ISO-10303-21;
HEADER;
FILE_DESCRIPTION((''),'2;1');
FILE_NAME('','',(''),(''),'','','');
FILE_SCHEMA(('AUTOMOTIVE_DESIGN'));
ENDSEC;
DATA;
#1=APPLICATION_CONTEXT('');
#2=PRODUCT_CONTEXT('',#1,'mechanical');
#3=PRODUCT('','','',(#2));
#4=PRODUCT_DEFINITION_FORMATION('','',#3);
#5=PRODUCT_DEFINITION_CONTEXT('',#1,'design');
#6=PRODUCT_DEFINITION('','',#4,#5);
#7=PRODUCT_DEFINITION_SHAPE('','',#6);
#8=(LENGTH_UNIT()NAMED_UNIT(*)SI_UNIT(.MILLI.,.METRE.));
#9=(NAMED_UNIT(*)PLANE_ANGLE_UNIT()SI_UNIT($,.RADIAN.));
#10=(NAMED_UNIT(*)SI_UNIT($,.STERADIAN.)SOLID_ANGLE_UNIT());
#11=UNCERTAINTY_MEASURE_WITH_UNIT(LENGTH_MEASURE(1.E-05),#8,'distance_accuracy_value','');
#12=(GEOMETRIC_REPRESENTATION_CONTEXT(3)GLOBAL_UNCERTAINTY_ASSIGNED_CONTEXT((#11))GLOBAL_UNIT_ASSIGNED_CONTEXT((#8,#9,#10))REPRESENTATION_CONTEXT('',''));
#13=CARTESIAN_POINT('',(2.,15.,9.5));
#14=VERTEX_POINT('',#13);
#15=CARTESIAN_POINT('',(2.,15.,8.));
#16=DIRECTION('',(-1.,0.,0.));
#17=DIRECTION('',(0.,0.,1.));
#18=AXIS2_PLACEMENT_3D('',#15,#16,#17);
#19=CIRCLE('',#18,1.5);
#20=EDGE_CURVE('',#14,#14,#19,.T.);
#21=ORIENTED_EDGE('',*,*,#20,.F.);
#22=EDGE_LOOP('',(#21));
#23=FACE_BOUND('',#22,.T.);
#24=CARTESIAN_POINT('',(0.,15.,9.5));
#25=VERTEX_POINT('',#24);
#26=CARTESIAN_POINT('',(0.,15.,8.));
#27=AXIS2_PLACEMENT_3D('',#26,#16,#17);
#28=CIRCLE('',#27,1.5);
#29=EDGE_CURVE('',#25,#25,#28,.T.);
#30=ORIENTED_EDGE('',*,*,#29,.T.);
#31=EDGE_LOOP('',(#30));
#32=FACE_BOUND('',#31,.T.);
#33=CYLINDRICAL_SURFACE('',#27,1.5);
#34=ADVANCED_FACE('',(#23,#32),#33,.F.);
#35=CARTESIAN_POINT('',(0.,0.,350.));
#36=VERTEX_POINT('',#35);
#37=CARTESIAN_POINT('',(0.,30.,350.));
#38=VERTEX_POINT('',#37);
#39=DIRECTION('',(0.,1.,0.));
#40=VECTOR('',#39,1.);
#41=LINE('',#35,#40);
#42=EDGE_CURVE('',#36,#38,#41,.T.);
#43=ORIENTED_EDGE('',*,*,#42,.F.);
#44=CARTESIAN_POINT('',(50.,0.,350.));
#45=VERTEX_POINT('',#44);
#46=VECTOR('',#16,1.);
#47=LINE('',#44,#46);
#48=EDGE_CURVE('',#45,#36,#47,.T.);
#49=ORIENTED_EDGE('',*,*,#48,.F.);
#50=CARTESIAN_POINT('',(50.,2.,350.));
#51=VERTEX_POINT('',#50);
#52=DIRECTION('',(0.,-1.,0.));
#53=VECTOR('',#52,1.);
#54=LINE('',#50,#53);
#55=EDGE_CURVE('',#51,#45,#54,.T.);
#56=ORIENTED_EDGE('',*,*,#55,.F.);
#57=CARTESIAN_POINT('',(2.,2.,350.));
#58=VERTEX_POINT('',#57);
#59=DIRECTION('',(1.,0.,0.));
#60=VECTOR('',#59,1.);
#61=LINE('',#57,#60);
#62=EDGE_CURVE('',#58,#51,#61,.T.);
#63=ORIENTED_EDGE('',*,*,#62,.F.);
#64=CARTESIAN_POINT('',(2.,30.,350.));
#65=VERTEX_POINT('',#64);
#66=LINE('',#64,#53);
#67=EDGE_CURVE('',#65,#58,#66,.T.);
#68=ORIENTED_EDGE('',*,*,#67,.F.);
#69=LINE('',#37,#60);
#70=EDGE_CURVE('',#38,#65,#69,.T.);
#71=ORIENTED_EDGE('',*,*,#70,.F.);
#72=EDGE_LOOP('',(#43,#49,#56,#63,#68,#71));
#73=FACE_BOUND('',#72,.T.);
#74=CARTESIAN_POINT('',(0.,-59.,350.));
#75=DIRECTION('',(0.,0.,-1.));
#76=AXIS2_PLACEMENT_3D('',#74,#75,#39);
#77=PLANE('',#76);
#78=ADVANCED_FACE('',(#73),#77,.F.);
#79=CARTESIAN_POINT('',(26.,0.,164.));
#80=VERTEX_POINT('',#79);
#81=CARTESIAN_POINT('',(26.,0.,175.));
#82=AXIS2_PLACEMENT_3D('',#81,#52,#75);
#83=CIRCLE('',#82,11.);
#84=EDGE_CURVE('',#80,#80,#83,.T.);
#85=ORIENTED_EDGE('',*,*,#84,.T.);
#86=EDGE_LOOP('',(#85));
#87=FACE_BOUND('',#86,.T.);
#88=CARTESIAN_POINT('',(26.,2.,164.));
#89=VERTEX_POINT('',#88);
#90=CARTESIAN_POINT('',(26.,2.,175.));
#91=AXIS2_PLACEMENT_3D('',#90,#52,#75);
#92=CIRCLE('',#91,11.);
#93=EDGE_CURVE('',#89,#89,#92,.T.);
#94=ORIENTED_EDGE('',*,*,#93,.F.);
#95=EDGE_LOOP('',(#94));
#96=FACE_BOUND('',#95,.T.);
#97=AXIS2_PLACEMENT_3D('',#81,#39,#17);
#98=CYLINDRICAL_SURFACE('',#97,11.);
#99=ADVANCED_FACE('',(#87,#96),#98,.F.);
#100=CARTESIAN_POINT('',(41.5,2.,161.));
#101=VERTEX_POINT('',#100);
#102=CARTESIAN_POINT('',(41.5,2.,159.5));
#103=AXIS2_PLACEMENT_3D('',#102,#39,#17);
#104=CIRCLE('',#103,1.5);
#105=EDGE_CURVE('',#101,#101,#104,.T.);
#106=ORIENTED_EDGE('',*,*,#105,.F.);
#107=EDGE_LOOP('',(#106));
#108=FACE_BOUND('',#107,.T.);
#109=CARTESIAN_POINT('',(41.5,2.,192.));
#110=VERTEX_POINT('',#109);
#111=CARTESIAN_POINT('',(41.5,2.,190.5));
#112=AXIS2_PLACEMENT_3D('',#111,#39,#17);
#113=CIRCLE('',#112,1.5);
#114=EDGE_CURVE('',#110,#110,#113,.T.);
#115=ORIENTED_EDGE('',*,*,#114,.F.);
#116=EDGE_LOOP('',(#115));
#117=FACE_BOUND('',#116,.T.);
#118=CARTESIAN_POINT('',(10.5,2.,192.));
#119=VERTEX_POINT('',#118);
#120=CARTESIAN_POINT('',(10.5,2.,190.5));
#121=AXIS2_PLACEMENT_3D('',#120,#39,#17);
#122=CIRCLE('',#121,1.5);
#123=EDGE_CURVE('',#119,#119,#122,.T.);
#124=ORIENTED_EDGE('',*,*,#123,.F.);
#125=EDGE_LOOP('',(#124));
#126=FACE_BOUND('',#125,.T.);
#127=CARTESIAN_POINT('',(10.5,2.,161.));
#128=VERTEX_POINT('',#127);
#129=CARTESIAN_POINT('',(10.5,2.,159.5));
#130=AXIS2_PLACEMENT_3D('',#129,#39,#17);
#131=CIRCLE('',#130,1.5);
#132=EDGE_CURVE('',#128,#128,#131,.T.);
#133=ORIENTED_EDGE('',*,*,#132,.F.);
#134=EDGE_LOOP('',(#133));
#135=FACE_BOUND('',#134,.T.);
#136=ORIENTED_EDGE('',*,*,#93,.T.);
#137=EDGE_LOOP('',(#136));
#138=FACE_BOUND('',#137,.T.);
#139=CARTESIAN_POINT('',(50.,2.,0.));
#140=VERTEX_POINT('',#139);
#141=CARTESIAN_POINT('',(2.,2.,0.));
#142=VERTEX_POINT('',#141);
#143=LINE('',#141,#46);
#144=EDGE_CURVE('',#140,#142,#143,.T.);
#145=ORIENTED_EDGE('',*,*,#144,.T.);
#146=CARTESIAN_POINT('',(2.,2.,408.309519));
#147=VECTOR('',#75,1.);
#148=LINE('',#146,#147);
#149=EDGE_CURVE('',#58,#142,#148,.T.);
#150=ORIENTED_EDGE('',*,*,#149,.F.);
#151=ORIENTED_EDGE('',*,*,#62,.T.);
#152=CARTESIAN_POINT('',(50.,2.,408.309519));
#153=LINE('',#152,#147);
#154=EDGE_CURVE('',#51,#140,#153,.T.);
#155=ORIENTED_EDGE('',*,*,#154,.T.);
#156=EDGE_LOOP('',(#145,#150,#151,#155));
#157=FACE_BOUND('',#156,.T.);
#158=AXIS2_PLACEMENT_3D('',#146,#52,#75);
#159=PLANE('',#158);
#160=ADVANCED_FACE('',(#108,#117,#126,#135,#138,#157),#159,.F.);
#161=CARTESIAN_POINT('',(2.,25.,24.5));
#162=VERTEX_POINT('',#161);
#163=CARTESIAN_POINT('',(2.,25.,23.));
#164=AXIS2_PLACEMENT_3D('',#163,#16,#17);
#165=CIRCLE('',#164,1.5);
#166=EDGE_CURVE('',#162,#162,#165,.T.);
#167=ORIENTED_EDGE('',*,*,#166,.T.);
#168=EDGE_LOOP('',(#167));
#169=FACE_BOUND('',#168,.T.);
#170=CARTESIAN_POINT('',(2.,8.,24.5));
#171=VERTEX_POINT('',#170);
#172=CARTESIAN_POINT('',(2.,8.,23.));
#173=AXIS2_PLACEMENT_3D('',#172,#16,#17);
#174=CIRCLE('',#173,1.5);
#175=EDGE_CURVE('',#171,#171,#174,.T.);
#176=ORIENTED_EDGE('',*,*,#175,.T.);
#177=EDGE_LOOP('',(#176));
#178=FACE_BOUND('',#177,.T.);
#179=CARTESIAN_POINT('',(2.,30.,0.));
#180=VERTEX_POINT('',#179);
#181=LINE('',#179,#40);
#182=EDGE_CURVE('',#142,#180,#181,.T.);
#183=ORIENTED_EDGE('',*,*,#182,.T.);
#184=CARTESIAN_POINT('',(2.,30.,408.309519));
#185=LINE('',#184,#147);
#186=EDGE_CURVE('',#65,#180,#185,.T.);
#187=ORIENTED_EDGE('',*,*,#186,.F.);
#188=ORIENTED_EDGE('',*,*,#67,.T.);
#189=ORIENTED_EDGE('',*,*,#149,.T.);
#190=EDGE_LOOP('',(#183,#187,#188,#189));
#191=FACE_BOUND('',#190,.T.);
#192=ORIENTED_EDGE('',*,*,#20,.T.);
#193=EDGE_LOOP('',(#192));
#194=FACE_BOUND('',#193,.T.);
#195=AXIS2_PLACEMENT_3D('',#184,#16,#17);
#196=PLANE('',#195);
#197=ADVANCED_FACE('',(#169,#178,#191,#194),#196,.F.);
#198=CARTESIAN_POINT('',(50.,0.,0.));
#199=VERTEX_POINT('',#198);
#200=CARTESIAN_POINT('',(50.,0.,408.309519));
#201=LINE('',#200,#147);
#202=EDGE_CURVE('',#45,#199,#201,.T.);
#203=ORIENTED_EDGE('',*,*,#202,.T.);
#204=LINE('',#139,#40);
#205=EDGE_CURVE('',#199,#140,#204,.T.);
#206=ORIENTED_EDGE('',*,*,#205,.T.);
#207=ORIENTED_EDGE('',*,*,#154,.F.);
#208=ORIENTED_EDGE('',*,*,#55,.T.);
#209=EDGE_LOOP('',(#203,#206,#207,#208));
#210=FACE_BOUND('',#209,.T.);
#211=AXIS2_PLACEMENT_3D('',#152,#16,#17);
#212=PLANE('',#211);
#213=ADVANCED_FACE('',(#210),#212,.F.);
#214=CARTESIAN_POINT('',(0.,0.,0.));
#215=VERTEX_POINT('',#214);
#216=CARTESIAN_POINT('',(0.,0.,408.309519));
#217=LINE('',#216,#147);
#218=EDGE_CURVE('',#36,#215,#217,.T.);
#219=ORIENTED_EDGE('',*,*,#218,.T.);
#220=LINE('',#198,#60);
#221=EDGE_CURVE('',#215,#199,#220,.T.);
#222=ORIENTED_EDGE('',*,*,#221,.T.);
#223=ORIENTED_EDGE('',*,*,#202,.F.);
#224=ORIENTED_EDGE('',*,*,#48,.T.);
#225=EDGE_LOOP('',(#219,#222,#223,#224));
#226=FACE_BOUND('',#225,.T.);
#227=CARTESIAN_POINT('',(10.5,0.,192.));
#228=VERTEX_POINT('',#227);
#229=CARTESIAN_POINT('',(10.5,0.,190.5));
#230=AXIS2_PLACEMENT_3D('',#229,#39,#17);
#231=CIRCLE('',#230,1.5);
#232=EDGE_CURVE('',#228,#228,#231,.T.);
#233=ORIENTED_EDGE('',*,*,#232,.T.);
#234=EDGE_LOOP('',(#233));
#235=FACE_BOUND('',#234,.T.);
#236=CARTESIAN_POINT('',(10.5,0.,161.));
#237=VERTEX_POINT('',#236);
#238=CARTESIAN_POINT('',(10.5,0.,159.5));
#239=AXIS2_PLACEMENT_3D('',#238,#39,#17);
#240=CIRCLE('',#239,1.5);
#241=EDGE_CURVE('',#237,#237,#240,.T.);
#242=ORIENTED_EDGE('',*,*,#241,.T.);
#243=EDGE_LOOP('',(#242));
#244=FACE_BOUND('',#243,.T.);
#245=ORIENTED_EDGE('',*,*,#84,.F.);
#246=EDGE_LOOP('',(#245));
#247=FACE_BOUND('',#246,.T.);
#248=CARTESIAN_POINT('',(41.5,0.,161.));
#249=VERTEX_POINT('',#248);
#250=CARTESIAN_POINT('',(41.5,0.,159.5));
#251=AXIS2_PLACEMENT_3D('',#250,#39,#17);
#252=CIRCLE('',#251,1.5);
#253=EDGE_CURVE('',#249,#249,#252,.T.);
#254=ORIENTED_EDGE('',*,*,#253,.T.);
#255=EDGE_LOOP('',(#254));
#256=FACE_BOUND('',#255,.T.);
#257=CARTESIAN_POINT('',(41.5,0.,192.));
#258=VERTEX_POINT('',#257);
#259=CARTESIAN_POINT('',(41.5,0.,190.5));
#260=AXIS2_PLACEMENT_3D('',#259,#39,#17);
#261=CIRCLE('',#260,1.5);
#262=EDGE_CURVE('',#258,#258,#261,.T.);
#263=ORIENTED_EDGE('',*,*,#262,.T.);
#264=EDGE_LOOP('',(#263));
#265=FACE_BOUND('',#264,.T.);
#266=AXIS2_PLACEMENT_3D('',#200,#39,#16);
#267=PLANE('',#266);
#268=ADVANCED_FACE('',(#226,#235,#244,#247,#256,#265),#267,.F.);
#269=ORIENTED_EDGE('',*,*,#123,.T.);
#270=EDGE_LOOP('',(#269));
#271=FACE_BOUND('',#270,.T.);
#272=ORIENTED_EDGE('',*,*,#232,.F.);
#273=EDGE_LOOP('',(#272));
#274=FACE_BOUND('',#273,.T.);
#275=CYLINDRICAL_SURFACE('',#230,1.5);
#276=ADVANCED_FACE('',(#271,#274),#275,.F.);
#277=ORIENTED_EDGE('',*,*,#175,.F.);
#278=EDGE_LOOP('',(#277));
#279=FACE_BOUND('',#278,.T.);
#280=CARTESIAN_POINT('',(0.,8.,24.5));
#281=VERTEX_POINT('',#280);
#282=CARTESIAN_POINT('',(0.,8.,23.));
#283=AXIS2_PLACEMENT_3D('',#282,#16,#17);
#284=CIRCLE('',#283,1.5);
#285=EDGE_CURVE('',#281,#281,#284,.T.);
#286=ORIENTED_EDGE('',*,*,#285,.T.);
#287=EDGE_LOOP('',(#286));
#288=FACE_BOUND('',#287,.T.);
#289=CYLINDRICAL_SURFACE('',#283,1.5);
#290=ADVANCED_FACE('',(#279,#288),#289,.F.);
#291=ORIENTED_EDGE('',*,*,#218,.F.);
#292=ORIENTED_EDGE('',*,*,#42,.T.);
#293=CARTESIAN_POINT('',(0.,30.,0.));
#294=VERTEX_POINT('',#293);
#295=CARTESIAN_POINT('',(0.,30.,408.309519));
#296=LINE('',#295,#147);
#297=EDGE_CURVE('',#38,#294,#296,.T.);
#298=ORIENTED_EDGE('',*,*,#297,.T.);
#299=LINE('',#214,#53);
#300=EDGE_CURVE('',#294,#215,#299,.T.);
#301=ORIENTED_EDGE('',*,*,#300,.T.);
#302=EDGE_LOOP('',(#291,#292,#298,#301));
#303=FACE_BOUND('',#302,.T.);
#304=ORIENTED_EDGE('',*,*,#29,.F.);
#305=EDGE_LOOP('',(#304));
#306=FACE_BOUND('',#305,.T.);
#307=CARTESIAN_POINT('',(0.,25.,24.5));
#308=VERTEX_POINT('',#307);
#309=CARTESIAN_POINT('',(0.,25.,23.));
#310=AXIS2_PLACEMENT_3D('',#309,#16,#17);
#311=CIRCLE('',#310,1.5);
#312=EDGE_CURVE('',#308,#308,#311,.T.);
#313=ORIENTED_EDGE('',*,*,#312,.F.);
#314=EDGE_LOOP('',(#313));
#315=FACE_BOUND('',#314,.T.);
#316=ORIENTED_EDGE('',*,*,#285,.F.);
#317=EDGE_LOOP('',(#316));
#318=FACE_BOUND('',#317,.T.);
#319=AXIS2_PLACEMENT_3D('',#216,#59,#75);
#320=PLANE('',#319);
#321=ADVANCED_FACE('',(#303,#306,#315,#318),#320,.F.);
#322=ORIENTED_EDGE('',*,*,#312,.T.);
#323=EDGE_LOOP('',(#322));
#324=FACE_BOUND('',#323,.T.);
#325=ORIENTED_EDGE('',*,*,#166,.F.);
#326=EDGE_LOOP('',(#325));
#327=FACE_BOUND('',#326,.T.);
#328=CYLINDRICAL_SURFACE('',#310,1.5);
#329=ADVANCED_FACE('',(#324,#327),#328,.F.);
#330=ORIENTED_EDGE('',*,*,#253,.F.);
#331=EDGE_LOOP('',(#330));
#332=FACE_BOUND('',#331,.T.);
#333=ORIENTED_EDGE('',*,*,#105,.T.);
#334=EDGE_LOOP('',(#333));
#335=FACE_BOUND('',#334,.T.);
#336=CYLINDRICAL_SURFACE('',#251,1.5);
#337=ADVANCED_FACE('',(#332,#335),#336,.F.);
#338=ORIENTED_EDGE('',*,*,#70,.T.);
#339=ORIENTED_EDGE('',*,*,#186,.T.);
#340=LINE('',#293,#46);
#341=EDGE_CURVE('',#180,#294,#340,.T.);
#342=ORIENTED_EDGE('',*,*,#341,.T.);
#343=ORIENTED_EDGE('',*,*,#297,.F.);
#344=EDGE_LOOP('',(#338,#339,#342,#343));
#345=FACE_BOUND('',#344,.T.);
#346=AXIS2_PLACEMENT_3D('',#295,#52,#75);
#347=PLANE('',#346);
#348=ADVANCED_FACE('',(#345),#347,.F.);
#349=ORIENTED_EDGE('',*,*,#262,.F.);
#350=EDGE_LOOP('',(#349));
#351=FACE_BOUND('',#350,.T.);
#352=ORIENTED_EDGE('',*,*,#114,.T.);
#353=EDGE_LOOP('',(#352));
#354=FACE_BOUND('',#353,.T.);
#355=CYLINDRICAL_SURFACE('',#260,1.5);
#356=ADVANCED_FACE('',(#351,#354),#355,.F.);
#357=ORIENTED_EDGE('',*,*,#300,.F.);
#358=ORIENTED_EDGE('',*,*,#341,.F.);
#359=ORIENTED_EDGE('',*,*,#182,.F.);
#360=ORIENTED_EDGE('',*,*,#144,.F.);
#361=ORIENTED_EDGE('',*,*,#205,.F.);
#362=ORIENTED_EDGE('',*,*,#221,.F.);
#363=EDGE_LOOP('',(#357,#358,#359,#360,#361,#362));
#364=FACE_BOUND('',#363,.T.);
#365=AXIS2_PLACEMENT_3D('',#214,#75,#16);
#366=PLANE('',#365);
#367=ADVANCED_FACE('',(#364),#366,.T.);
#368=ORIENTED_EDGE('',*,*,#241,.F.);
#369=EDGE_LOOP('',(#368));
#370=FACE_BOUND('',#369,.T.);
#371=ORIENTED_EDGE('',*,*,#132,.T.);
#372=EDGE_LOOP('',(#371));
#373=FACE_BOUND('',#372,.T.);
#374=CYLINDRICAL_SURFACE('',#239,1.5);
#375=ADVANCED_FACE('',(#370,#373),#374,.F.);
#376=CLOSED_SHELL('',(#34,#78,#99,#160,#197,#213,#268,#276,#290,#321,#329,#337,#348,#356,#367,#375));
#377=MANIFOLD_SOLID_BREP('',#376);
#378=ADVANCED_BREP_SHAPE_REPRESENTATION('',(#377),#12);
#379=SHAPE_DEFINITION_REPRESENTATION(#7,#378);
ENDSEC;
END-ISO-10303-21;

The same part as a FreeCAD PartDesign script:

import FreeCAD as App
import Part
import Sketcher
from FreeCAD import Vector


def add_polygon(sketch, points):
    """Adds a closed chain of lines whose ends are joined by coincident constraints."""
    first, n = sketch.GeometryCount, len(points)
    for a, b in zip(points, points[1:] + points[:1]):
        sketch.addGeometry(Part.LineSegment(App.Vector(*a, 0), App.Vector(*b, 0)), False)
    for i in range(n):
        sketch.addConstraint(Sketcher.Constraint("Coincident", first + i, 2, first + (i + 1) % n, 1))

doc = App.newDocument("Part")
body = doc.addObject("PartDesign::Body", "Body")

# Sketch on XY plane
sketch1 = body.newObject("Sketcher::SketchObject", "Sketch")
sketch1.AttachmentSupport = (doc.getObject("XY_Plane"), [""])
sketch1.MapMode = "FlatFace"
add_polygon(sketch1, [(0, 30), (0, 0), (50, 0), (50, 2), (2, 2), (2, 30)])  # lines 0-5
sketch1.addConstraint([
    Sketcher.Constraint("Vertical", 0),
    Sketcher.Constraint("Horizontal", 1),
    Sketcher.Constraint("Vertical", 2),
    Sketcher.Constraint("Horizontal", 3),
    Sketcher.Constraint("Vertical", 4),
    Sketcher.Constraint("Horizontal", 5),
    Sketcher.Constraint("Coincident", 0, 2, -1, 1),
    Sketcher.Constraint("Equal", 5, 2),
    Sketcher.Constraint("DistanceX", 1, 1, 1, 2, 50.0),
    Sketcher.Constraint("DistanceX", 3, 2, 3, 1, 48.0),
    Sketcher.Constraint("DistanceY", 0, 2, 0, 1, 30.0),
])
pad1 = body.newObject("PartDesign::Pad", "Pad")
pad1.Profile = sketch1
pad1.Length = 350

# Sketch on XZ plane
sketch2 = body.newObject("Sketcher::SketchObject", "Sketch001")
sketch2.AttachmentSupport = (doc.getObject("XZ_Plane"), [""])
sketch2.MapMode = "FlatFace"
sketch2.AttachmentOffset = App.Placement(Vector(0, 0, -2), App.Rotation())
sketch2.addGeometry(Part.Circle(Vector(26, 175, 0), Vector(0, 0, 1), 11), False)
sketch2.addConstraint([
    Sketcher.Constraint("Diameter", 0, 22.0),
    Sketcher.Constraint("DistanceX", -1, 1, 0, 3, 26.0),
    Sketcher.Constraint("DistanceY", -1, 1, 0, 3, 175.0),
])
pocket1 = body.newObject("PartDesign::Pocket", "Pocket")
pocket1.Profile = sketch2
pocket1.Type = "ThroughAll"
pocket1.Reversed = True

# Sketch on XZ plane
sketch3 = body.newObject("Sketcher::SketchObject", "Sketch002")
sketch3.AttachmentSupport = (doc.getObject("XZ_Plane"), [""])
sketch3.MapMode = "FlatFace"
sketch3.AttachmentOffset = App.Placement(Vector(0, 0, -2), App.Rotation())
sketch3.addGeometry([
    Part.Circle(Vector(41.5, 190.5, 0), Vector(0, 0, 1), 1.5),
    Part.Circle(Vector(41.5, 159.5, 0), Vector(0, 0, 1), 1.5),
    Part.Circle(Vector(10.5, 190.5, 0), Vector(0, 0, 1), 1.5),
    Part.Circle(Vector(10.5, 159.5, 0), Vector(0, 0, 1), 1.5),
], False)
sketch3.addConstraint([
    Sketcher.Constraint("Equal", 0, 1),
    Sketcher.Constraint("Equal", 1, 2),
    Sketcher.Constraint("Equal", 2, 3),
    Sketcher.Constraint("Horizontal", 0, 3, 2, 3),
    Sketcher.Constraint("Horizontal", 1, 3, 3, 3),
    Sketcher.Constraint("Vertical", 0, 3, 1, 3),
    Sketcher.Constraint("Vertical", 2, 3, 3, 3),
    Sketcher.Constraint("Diameter", 0, 3.0),
    Sketcher.Constraint("DistanceY", 1, 3, 0, 3, 31.0),
    Sketcher.Constraint("DistanceX", 2, 3, 0, 3, 31.0),
    Sketcher.Constraint("DistanceX", -1, 1, 0, 3, 41.5),
    Sketcher.Constraint("DistanceY", -1, 1, 0, 3, 190.5),
])
pocket2 = body.newObject("PartDesign::Pocket", "Pocket001")
pocket2.Profile = sketch3
pocket2.Type = "ThroughAll"
pocket2.Reversed = True

# Sketch on YZ plane
sketch4 = body.newObject("Sketcher::SketchObject", "Sketch003")
sketch4.AttachmentSupport = (doc.getObject("YZ_Plane"), [""])
sketch4.MapMode = "FlatFace"
sketch4.addGeometry([
    Part.Circle(Vector(8, 23, 0), Vector(0, 0, 1), 1.5),
    Part.Circle(Vector(25, 23, 0), Vector(0, 0, 1), 1.5),
    Part.Circle(Vector(15, 8, 0), Vector(0, 0, 1), 1.5),
], False)
sketch4.addConstraint([
    Sketcher.Constraint("Equal", 0, 1),
    Sketcher.Constraint("Equal", 1, 2),
    Sketcher.Constraint("Horizontal", 0, 3, 1, 3),
    Sketcher.Constraint("Diameter", 0, 3.0),
    Sketcher.Constraint("DistanceX", -1, 1, 0, 3, 8.0),
    Sketcher.Constraint("DistanceY", -1, 1, 0, 3, 23.0),
    Sketcher.Constraint("DistanceX", -1, 1, 1, 3, 25.0),
    Sketcher.Constraint("DistanceX", -1, 1, 2, 3, 15.0),
    Sketcher.Constraint("DistanceY", -1, 1, 2, 3, 8.0),
])
doc.recompute()
hole = body.newObject("PartDesign::Hole", "Hole")
hole.Profile = sketch4
hole.ThreadType = "None"
hole.Diameter = 3
hole.DepthType = "ThroughAll"
hole.Reversed = True

doc.recompute()
